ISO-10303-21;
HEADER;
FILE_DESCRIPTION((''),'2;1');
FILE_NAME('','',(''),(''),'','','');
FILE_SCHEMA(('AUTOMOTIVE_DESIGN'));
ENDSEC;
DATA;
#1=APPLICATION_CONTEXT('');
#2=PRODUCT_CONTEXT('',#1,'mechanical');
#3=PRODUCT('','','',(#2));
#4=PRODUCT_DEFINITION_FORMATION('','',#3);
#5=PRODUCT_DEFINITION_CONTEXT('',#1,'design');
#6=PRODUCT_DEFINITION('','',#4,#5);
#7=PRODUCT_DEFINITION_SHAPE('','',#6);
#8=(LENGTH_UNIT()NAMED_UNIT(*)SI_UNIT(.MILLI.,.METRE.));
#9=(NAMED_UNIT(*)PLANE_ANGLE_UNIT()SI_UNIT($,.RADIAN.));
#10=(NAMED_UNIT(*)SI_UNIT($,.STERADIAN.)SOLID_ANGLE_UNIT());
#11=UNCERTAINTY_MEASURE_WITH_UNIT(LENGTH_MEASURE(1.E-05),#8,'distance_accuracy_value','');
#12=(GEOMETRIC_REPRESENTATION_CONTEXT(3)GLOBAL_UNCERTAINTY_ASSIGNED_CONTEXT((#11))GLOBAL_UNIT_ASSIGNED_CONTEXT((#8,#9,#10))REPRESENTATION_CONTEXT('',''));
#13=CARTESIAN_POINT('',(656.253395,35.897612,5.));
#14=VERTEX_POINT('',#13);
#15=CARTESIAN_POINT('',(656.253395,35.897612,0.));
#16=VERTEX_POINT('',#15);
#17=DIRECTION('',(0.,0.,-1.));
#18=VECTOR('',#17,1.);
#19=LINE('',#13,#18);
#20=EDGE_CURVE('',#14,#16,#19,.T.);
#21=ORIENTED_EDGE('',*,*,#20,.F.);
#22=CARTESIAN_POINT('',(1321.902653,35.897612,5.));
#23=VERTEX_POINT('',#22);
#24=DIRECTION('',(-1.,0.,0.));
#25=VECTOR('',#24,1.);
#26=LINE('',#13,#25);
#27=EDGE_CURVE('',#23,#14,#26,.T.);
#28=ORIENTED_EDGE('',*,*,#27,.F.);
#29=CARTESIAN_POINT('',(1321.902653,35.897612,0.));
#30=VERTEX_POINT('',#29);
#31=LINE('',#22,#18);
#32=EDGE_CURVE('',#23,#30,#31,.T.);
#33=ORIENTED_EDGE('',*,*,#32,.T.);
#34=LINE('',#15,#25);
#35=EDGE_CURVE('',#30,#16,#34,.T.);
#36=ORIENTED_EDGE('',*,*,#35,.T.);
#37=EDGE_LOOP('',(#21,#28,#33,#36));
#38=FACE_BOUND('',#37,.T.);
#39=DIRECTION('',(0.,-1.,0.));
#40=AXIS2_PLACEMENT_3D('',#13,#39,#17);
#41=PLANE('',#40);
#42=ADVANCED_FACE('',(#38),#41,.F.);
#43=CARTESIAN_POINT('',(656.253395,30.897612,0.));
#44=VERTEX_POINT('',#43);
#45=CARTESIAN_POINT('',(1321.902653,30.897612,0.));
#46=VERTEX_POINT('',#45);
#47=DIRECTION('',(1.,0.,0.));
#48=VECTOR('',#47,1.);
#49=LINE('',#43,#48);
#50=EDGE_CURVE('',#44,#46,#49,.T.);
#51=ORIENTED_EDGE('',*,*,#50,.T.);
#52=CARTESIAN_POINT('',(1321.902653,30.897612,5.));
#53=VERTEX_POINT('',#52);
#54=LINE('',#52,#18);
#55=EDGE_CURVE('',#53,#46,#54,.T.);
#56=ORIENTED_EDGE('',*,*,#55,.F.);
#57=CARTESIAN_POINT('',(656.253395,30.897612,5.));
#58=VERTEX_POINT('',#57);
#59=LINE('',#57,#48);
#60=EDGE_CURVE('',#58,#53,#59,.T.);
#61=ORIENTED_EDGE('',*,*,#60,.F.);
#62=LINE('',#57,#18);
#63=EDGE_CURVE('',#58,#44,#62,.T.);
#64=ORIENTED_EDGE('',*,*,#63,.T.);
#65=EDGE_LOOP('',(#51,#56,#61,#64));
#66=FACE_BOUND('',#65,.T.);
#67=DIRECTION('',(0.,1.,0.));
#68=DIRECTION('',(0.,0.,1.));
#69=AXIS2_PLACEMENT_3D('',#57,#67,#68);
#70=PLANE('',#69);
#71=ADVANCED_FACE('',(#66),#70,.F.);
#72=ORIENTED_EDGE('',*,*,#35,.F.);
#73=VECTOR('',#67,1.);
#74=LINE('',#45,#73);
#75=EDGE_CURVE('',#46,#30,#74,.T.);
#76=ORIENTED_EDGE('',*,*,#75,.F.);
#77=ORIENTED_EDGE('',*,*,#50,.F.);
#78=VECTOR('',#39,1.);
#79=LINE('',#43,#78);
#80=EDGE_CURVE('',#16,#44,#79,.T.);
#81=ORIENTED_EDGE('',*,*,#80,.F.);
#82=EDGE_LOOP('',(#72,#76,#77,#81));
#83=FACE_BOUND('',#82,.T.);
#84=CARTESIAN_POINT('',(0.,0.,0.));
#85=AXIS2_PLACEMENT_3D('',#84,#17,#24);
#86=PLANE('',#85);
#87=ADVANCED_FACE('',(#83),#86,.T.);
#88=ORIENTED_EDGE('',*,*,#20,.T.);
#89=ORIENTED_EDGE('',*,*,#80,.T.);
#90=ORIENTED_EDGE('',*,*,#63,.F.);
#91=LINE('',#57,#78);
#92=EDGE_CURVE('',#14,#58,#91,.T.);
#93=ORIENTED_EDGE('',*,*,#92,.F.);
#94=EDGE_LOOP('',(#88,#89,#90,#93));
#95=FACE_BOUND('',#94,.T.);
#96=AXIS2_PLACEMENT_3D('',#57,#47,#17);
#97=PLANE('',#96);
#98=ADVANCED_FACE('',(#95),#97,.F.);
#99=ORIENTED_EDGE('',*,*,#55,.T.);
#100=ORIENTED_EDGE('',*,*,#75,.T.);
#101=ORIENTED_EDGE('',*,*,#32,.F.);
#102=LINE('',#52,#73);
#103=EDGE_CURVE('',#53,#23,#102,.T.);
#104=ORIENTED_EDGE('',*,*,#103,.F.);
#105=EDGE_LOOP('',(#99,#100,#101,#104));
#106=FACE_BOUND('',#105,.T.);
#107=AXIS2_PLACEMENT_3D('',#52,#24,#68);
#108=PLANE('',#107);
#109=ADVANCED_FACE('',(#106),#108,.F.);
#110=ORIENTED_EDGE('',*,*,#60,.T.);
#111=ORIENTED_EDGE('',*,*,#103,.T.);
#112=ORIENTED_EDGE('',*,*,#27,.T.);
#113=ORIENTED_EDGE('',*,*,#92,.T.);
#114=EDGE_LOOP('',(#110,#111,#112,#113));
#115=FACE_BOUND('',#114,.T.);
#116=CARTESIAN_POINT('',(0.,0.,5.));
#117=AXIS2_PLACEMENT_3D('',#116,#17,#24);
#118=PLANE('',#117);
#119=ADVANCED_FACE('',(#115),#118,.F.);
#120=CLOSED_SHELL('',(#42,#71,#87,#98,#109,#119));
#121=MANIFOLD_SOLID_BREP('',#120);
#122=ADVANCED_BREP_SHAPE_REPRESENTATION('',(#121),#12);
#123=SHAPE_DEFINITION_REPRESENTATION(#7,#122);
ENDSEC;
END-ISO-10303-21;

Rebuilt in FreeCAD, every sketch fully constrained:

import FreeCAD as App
import Part
import Sketcher

V = App.Vector


def add_polygon(sketch, points):
    """Adds a closed chain of lines whose ends are joined by coincident constraints."""
    first, n = sketch.GeometryCount, len(points)
    for a, b in zip(points, points[1:] + points[:1]):
        sketch.addGeometry(Part.LineSegment(App.Vector(*a, 0), App.Vector(*b, 0)), False)
    for i in range(n):
        sketch.addConstraint(Sketcher.Constraint("Coincident", first + i, 2, first + (i + 1) % n, 1))

doc = App.newDocument("Part")
params = doc.addObject("Spreadsheet::Sheet", "Params")
for row, (alias, value) in enumerate([
    ("sketch1_height", "5 mm"),
    ("pad1_length", "5 mm"),
], start=1):
    params.set(f"A{row}", alias)
    params.set(f"B{row}", "=" + value)
    params.setAlias(f"B{row}", alias)

body = doc.addObject("PartDesign::Body", "Body")

# Sketch on XY plane
sketch1 = doc.addObject("Sketcher::SketchObject", "Sketch")
body.addObject(sketch1)
sketch1.AttachmentSupport = (doc.XY_Plane, [""])
sketch1.MapMode = "FlatFace"
add_polygon(sketch1, [(656, 36), (656, 31), (1322, 31), (1322, 36)])  # lines 0-3
sketch1.addConstraint([
    Sketcher.Constraint("Vertical", 0),
    Sketcher.Constraint("Horizontal", 1),
    Sketcher.Constraint("Vertical", 2),
    Sketcher.Constraint("Horizontal", 3),
    Sketcher.Constraint("DistanceY", 0, 2, 0, 1, 5.0),
    Sketcher.Constraint("DistanceX", 1, 1, 1, 2, 665.649258),
    Sketcher.Constraint("DistanceX", -1, 1, 0, 2, 656.253395),
    Sketcher.Constraint("DistanceY", -1, 1, 0, 2, 30.897612),
])
sketch1.setExpression("Constraints[8]", "Params.sketch1_height")
pad1 = doc.addObject("PartDesign::Pad", "Pad")
body.addObject(pad1)
pad1.Profile = sketch1
pad1.setExpression("Length", "Params.pad1_length")

doc.recompute()
